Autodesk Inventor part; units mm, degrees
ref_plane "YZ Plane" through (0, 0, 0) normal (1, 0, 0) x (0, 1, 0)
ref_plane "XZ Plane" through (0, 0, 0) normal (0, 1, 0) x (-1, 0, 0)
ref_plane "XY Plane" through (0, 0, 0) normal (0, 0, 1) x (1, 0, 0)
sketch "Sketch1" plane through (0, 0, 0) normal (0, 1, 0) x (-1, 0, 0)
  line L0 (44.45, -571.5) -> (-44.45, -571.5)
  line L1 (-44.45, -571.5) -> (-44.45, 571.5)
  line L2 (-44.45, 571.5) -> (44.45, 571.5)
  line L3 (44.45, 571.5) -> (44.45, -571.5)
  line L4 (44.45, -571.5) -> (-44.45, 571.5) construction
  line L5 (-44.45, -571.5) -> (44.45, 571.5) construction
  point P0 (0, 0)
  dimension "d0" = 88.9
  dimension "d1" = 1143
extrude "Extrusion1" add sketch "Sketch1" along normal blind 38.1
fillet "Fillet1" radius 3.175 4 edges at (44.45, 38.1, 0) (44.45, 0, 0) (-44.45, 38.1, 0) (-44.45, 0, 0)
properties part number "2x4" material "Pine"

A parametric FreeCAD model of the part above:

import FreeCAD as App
import Part
import Sketcher

V = App.Vector
Q = App.Units.Quantity


def edges_at(feature, points):
    """Names of the edges that pass closest to the given points."""
    edges = feature.Shape.Edges
    near = lambda p: min(range(len(edges)), key=lambda i: edges[i].distToShape(Part.Vertex(*p))[0])
    return sorted({f"Edge{near(p) + 1}" for p in points})

doc = App.newDocument("Part")
body = doc.addObject("PartDesign::Body", "Body")

# Sketch on XZ plane
sketch1 = body.newObject("Sketcher::SketchObject", "Sketch")
sketch1.AttachmentSupport = (doc.getObject("XZ_Plane"), [""])
sketch1.MapMode = "FlatFace"
sketch1.addGeometry([
    Part.LineSegment(V(44, -572, 0), V(-44, -572, 0)),
    Part.LineSegment(V(-44, -572, 0), V(-44, 572, 0)),
    Part.LineSegment(V(-44, 572, 0), V(44, 572, 0)),
    Part.LineSegment(V(44, 572, 0), V(44, -572, 0)),
], False)
sketch1.addConstraint([
    Sketcher.Constraint("Coincident", 0, 2, 1, 1),
    Sketcher.Constraint("Coincident", 1, 2, 2, 1),
    Sketcher.Constraint("Coincident", 2, 2, 3, 1),
    Sketcher.Constraint("Coincident", 3, 2, 0, 1),
    Sketcher.Constraint("Horizontal", 0),
    Sketcher.Constraint("Vertical", 1),
    Sketcher.Constraint("Horizontal", 2),
    Sketcher.Constraint("Vertical", 3),
    Sketcher.Constraint("Symmetric", 0, 2, 2, 2, -1, 1),
    Sketcher.Constraint("DistanceY", 1, 1, 1, 2, Q("45 in")),
    Sketcher.Constraint("DistanceX", 0, 2, 0, 1, Q("3.5 in")),
])
pad1 = body.newObject("PartDesign::Pad", "Pad")
pad1.Profile = sketch1
pad1.Length = Q("1.5 in")
pad1.Reversed = True
doc.recompute()

fillet = body.newObject("PartDesign::Fillet", "Fillet")
fillet.Base = (pad1, edges_at(pad1, [
    (44.45, 38.1, 0),
    (44.45, 0, 0),
    (-44.45, 38.1, 0),
    (-44.45, 0, 0),
]))
fillet.Radius = Q("0.125 in")

doc.recompute()
